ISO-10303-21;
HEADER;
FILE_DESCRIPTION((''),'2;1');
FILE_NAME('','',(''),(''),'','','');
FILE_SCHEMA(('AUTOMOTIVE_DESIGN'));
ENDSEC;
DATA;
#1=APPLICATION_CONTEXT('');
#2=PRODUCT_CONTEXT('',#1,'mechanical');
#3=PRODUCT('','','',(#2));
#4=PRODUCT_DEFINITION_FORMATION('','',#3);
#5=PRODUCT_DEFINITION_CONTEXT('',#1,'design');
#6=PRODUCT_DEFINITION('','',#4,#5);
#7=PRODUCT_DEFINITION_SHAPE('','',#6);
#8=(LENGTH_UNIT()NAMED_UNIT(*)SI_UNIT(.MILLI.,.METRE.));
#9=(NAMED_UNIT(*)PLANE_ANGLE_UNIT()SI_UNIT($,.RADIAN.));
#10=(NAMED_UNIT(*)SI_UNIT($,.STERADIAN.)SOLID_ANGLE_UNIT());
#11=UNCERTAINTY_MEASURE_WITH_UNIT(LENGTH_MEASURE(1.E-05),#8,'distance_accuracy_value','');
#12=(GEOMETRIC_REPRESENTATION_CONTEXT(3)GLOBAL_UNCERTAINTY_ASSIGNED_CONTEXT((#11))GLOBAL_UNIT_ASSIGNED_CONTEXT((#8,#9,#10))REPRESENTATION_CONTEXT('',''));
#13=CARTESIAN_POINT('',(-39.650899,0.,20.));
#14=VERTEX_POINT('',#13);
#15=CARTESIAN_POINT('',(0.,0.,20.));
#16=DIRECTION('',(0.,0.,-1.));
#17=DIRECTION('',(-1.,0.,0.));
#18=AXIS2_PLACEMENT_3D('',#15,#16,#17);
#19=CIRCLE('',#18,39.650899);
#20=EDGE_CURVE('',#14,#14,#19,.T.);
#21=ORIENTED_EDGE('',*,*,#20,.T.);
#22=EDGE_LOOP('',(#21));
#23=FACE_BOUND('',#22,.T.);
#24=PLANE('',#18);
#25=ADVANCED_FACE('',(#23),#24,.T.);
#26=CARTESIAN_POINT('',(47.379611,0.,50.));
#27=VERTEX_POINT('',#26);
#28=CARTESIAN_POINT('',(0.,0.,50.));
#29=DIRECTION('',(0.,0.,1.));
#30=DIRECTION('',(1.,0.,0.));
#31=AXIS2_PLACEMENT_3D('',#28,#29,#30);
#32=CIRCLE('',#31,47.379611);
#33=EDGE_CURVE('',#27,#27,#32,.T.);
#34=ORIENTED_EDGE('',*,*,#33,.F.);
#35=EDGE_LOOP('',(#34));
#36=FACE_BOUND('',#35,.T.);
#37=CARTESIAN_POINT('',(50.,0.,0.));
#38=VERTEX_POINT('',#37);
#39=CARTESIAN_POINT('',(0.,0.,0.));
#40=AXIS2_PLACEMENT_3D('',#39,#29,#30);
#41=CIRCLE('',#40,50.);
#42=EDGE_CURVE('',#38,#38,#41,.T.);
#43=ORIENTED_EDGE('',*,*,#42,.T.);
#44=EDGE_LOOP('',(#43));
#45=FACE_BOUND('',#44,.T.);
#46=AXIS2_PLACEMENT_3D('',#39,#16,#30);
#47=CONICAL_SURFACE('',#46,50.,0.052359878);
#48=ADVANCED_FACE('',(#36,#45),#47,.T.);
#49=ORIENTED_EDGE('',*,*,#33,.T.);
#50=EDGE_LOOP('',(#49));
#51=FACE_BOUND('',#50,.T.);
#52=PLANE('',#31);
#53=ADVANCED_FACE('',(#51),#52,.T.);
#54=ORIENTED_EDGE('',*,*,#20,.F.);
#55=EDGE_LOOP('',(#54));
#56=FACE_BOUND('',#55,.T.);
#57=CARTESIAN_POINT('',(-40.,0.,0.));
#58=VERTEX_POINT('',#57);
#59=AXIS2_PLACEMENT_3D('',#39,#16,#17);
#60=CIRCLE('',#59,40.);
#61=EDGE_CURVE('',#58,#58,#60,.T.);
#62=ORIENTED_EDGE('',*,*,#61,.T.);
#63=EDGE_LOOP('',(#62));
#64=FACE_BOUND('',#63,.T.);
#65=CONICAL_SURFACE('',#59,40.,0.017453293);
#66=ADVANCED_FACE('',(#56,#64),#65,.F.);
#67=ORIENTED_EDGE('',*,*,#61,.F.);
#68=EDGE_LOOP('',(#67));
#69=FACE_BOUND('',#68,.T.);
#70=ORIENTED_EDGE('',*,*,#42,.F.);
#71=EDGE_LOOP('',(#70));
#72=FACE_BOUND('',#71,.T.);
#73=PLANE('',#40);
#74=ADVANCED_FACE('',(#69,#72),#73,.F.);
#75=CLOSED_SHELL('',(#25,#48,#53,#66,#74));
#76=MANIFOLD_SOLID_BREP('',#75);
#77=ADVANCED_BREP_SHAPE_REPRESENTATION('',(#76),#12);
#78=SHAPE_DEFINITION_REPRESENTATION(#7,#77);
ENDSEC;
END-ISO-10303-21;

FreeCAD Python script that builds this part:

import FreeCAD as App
import Part
import Sketcher
Q = App.Units.Quantity


def faces_at(feature, points):
    """Names of the faces that lie closest to the given points."""
    faces = feature.Shape.Faces
    near = lambda p: min(range(len(faces)), key=lambda i: faces[i].distToShape(Part.Vertex(*p))[0])
    return sorted({f"Face{near(p) + 1}" for p in points})

doc = App.newDocument("Part")
body = doc.addObject("PartDesign::Body", "Body")

sketch1 = body.newObject("Sketcher::SketchObject", "Sketch")
sketch1.AttachmentSupport = (doc.getObject("XY_Plane"), [""])
sketch1.MapMode = "FlatFace"
sketch1.addGeometry(Part.Circle(App.Vector(0, 0, 0), App.Vector(0, 0, 1), 50), False)
sketch1.addConstraint([
    Sketcher.Constraint("Coincident", 0, 3, -1, 1),
    Sketcher.Constraint("Diameter", 0, Q("100 mm")),
])
pad1 = body.newObject("PartDesign::Pad", "Pad")
pad1.Profile = sketch1
pad1.Length = 50
pad1.TaperAngle = -3
body2 = doc.addObject("PartDesign::Body", "Body001")

sketch2 = body2.newObject("Sketcher::SketchObject", "Sketch001")
sketch2.AttachmentSupport = (doc.getObject("XY_Plane001"), [""])
sketch2.MapMode = "FlatFace"
sketch2.addGeometry(Part.Circle(App.Vector(0, 0, 0), App.Vector(0, 0, 1), 40), False)
sketch2.addConstraint([
    Sketcher.Constraint("Coincident", 0, 3, -1, 1),
    Sketcher.Constraint("Diameter", 0, Q("80 mm")),
])
pad2 = body2.newObject("PartDesign::Pad", "Pad001")
pad2.Profile = sketch2
pad2.Length = 20
doc.recompute()

draft = body2.newObject("PartDesign::Draft", "Draft")
draft.Base = (pad2, faces_at(pad2, [(40, 0, 10)]))
draft.NeutralPlane = (doc.getObject("XY_Plane001"), [""])
draft.Angle = 1
draft.Reversed = False
doc.recompute()

boolean = body.newObject("PartDesign::Boolean", "Boolean")
boolean.Type = "Cut"
boolean.addObjects([body2])

doc.recompute()
